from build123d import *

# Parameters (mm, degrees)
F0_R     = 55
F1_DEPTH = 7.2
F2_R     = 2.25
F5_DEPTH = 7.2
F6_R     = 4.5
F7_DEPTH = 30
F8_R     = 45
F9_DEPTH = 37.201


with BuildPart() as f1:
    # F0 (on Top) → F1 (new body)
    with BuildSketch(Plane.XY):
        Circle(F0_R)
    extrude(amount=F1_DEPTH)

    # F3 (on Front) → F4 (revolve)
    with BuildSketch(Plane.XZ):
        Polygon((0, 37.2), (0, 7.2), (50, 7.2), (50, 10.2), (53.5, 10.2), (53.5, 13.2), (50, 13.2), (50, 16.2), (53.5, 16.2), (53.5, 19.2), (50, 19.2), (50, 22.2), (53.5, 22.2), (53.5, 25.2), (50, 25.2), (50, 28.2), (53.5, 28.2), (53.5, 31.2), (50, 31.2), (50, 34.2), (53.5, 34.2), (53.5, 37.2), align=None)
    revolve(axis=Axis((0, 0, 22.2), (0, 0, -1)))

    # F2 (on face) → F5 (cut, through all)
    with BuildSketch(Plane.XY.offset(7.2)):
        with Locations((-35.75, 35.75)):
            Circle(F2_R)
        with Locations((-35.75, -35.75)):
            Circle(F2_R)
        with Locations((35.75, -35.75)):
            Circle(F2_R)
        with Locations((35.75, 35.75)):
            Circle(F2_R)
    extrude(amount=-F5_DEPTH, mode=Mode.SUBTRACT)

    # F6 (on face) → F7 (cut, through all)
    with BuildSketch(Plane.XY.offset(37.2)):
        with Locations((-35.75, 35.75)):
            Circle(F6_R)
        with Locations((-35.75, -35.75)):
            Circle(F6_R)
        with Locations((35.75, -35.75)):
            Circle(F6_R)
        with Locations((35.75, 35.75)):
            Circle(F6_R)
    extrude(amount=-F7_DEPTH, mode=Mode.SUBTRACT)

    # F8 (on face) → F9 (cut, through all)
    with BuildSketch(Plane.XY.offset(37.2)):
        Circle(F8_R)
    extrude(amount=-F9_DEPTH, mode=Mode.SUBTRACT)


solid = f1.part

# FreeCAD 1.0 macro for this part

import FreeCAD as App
import Part
import Sketcher

V = App.Vector


def add_polygon(sketch, points):
    """Adds a closed chain of lines whose ends are joined by coincident constraints."""
    first, n = sketch.GeometryCount, len(points)
    for a, b in zip(points, points[1:] + points[:1]):
        sketch.addGeometry(Part.LineSegment(App.Vector(*a, 0), App.Vector(*b, 0)), False)
    for i in range(n):
        sketch.addConstraint(Sketcher.Constraint("Coincident", first + i, 2, first + (i + 1) % n, 1))

doc = App.newDocument("Part")
body = doc.addObject("PartDesign::Body", "Body")

# Sketch on XY plane
sketch1 = doc.addObject("Sketcher::SketchObject", "Sketch")
body.addObject(sketch1)
sketch1.AttachmentSupport = (doc.XY_Plane, [""])
sketch1.MapMode = "FlatFace"
sketch1.addGeometry(Part.Circle(V(0, 0, 0), V(0, 0, 1), 55), False)
sketch1.addConstraint([
    Sketcher.Constraint("Coincident", 0, 3, -1, 1),
    Sketcher.Constraint("Diameter", 0, 110.0),
])
pad1 = doc.addObject("PartDesign::Pad", "Pad")
body.addObject(pad1)
pad1.Profile = sketch1
pad1.Length = 7.2

# Sketch on XZ plane
sketch2 = doc.addObject("Sketcher::SketchObject", "Sketch001")
body.addObject(sketch2)
sketch2.AttachmentSupport = (doc.XZ_Plane, [""])
sketch2.MapMode = "FlatFace"
add_polygon(sketch2, [(0, 37.2), (0, 7.2), (50, 7.2), (50, 10.2), (53.5, 10.2), (53.5, 13.2), (50, 13.2), (50, 16.2), (53.5, 16.2), (53.5, 19.2), (50, 19.2), (50, 22.2), (53.5, 22.2), (53.5, 25.2), (50, 25.2), (50, 28.2), (53.5, 28.2), (53.5, 31.2), (50, 31.2), (50, 34.2), (53.5, 34.2), (53.5, 37.2)])  # lines 0-21
sketch2.addConstraint([
    Sketcher.Constraint("Vertical", 0),
    Sketcher.Constraint("Horizontal", 1),
    Sketcher.Constraint("Vertical", 2),
    Sketcher.Constraint("Horizontal", 3),
    Sketcher.Constraint("Vertical", 4),
    Sketcher.Constraint("Horizontal", 5),
    Sketcher.Constraint("Vertical", 6),
    Sketcher.Constraint("Horizontal", 7),
    Sketcher.Constraint("Vertical", 8),
    Sketcher.Constraint("Horizontal", 9),
    Sketcher.Constraint("Vertical", 10),
    Sketcher.Constraint("Horizontal", 11),
    Sketcher.Constraint("Vertical", 12),
    Sketcher.Constraint("Horizontal", 13),
    Sketcher.Constraint("Vertical", 14),
    Sketcher.Constraint("Horizontal", 15),
    Sketcher.Constraint("Vertical", 16),
    Sketcher.Constraint("Horizontal", 17),
    Sketcher.Constraint("Vertical", 18),
    Sketcher.Constraint("Horizontal", 19),
    Sketcher.Constraint("Vertical", 20),
    Sketcher.Constraint("Horizontal", 21),
    Sketcher.Constraint("PointOnObject", 0, 2, -2),
    Sketcher.Constraint("Vertical", 2, 2, 5, 2),
    Sketcher.Constraint("Vertical", 4, 2, 7, 2),
    Sketcher.Constraint("Vertical", 6, 2, 9, 2),
    Sketcher.Constraint("Vertical", 8, 2, 11, 2),
    Sketcher.Constraint("Vertical", 10, 2, 13, 2),
    Sketcher.Constraint("Vertical", 12, 2, 15, 2),
    Sketcher.Constraint("Vertical", 14, 2, 17, 2),
    Sketcher.Constraint("Vertical", 16, 2, 19, 2),
    Sketcher.Constraint("Equal", 2, 4),
    Sketcher.Constraint("Equal", 4, 6),
    Sketcher.Constraint("Equal", 6, 8),
    Sketcher.Constraint("Equal", 8, 10),
    Sketcher.Constraint("Equal", 10, 12),
    Sketcher.Constraint("Equal", 12, 14),
    Sketcher.Constraint("Equal", 14, 16),
    Sketcher.Constraint("Equal", 16, 18),
    Sketcher.Constraint("Equal", 18, 20),
    Sketcher.Constraint("DistanceX", 1, 1, 1, 2, 50.0),
    Sketcher.Constraint("DistanceY", 0, 2, 0, 1, 30.0),
    Sketcher.Constraint("DistanceX", 3, 1, 3, 2, 3.5),
    Sketcher.Constraint("DistanceY", -1, 1, 0, 2, 7.2),
])
revolution = doc.addObject("PartDesign::Revolution", "Revolution")
body.addObject(revolution)
revolution.Profile = sketch2
revolution.ReferenceAxis = (sketch2, ["V_Axis"])
revolution.Angle = 360

# Sketch on XY plane
sketch3 = doc.addObject("Sketcher::SketchObject", "Sketch002")
body.addObject(sketch3)
sketch3.AttachmentSupport = (doc.XY_Plane, [""])
sketch3.MapMode = "FlatFace"
sketch3.AttachmentOffset = App.Placement(V(0, 0, 7.2), App.Rotation())
sketch3.addGeometry([
    Part.Circle(V(-35.8, 35.8, 0), V(0, 0, 1), 2.2),
    Part.Circle(V(-35.8, -35.8, 0), V(0, 0, 1), 2.2),
    Part.Circle(V(35.8, -35.8, 0), V(0, 0, 1), 2.2),
    Part.Circle(V(35.8, 35.8, 0), V(0, 0, 1), 2.2),
], False)
sketch3.addConstraint([
    Sketcher.Constraint("Equal", 0, 1),
    Sketcher.Constraint("Equal", 1, 2),
    Sketcher.Constraint("Equal", 2, 3),
    Sketcher.Constraint("Symmetric", 0, 3, 2, 3, -1, 1),
    Sketcher.Constraint("Symmetric", 1, 3, 3, 3, -1, 1),
    Sketcher.Constraint("Symmetric", 1, 3, 2, 3, -2),
    Sketcher.Constraint("Diameter", 0, 4.5),
    Sketcher.Constraint("DistanceY", 1, 3, 0, 3, 71.5),
    Sketcher.Constraint("DistanceX", 1, 3, 2, 3, 71.5),
])
pocket1 = doc.addObject("PartDesign::Pocket", "Pocket")
body.addObject(pocket1)
pocket1.Profile = sketch3
pocket1.Type = "ThroughAll"

# Sketch on XY plane
sketch4 = doc.addObject("Sketcher::SketchObject", "Sketch003")
body.addObject(sketch4)
sketch4.AttachmentSupport = (doc.XY_Plane, [""])
sketch4.MapMode = "FlatFace"
sketch4.AttachmentOffset = App.Placement(V(0, 0, 37.2), App.Rotation())
sketch4.addGeometry([
    Part.Circle(V(-35.8, 35.8, 0), V(0, 0, 1), 4.5),
    Part.Circle(V(-35.8, -35.8, 0), V(0, 0, 1), 4.5),
    Part.Circle(V(35.8, -35.8, 0), V(0, 0, 1), 4.5),
    Part.Circle(V(35.8, 35.8, 0), V(0, 0, 1), 4.5),
], False)
sketch4.addConstraint([
    Sketcher.Constraint("Equal", 0, 1),
    Sketcher.Constraint("Equal", 1, 2),
    Sketcher.Constraint("Equal", 2, 3),
    Sketcher.Constraint("Symmetric", 0, 3, 2, 3, -1, 1),
    Sketcher.Constraint("Symmetric", 1, 3, 3, 3, -1, 1),
    Sketcher.Constraint("Symmetric", 1, 3, 2, 3, -2),
    Sketcher.Constraint("Diameter", 0, 9.0),
    Sketcher.Constraint("DistanceY", 1, 3, 0, 3, 71.5),
    Sketcher.Constraint("DistanceX", 1, 3, 2, 3, 71.5),
])
pocket2 = doc.addObject("PartDesign::Pocket", "Pocket001")
body.addObject(pocket2)
pocket2.Profile = sketch4
pocket2.Length = 30

# Sketch on XY plane
sketch5 = doc.addObject("Sketcher::SketchObject", "Sketch004")
body.addObject(sketch5)
sketch5.AttachmentSupport = (doc.XY_Plane, [""])
sketch5.MapMode = "FlatFace"
sketch5.AttachmentOffset = App.Placement(V(0, 0, 37.2), App.Rotation())
sketch5.addGeometry(Part.Circle(V(0, 0, 0), V(0, 0, 1), 45), False)
sketch5.addConstraint([
    Sketcher.Constraint("Coincident", 0, 3, -1, 1),
    Sketcher.Constraint("Diameter", 0, 90.0),
])
pocket3 = doc.addObject("PartDesign::Pocket", "Pocket002")
body.addObject(pocket3)
pocket3.Profile = sketch5
pocket3.Type = "ThroughAll"

doc.recompute()
